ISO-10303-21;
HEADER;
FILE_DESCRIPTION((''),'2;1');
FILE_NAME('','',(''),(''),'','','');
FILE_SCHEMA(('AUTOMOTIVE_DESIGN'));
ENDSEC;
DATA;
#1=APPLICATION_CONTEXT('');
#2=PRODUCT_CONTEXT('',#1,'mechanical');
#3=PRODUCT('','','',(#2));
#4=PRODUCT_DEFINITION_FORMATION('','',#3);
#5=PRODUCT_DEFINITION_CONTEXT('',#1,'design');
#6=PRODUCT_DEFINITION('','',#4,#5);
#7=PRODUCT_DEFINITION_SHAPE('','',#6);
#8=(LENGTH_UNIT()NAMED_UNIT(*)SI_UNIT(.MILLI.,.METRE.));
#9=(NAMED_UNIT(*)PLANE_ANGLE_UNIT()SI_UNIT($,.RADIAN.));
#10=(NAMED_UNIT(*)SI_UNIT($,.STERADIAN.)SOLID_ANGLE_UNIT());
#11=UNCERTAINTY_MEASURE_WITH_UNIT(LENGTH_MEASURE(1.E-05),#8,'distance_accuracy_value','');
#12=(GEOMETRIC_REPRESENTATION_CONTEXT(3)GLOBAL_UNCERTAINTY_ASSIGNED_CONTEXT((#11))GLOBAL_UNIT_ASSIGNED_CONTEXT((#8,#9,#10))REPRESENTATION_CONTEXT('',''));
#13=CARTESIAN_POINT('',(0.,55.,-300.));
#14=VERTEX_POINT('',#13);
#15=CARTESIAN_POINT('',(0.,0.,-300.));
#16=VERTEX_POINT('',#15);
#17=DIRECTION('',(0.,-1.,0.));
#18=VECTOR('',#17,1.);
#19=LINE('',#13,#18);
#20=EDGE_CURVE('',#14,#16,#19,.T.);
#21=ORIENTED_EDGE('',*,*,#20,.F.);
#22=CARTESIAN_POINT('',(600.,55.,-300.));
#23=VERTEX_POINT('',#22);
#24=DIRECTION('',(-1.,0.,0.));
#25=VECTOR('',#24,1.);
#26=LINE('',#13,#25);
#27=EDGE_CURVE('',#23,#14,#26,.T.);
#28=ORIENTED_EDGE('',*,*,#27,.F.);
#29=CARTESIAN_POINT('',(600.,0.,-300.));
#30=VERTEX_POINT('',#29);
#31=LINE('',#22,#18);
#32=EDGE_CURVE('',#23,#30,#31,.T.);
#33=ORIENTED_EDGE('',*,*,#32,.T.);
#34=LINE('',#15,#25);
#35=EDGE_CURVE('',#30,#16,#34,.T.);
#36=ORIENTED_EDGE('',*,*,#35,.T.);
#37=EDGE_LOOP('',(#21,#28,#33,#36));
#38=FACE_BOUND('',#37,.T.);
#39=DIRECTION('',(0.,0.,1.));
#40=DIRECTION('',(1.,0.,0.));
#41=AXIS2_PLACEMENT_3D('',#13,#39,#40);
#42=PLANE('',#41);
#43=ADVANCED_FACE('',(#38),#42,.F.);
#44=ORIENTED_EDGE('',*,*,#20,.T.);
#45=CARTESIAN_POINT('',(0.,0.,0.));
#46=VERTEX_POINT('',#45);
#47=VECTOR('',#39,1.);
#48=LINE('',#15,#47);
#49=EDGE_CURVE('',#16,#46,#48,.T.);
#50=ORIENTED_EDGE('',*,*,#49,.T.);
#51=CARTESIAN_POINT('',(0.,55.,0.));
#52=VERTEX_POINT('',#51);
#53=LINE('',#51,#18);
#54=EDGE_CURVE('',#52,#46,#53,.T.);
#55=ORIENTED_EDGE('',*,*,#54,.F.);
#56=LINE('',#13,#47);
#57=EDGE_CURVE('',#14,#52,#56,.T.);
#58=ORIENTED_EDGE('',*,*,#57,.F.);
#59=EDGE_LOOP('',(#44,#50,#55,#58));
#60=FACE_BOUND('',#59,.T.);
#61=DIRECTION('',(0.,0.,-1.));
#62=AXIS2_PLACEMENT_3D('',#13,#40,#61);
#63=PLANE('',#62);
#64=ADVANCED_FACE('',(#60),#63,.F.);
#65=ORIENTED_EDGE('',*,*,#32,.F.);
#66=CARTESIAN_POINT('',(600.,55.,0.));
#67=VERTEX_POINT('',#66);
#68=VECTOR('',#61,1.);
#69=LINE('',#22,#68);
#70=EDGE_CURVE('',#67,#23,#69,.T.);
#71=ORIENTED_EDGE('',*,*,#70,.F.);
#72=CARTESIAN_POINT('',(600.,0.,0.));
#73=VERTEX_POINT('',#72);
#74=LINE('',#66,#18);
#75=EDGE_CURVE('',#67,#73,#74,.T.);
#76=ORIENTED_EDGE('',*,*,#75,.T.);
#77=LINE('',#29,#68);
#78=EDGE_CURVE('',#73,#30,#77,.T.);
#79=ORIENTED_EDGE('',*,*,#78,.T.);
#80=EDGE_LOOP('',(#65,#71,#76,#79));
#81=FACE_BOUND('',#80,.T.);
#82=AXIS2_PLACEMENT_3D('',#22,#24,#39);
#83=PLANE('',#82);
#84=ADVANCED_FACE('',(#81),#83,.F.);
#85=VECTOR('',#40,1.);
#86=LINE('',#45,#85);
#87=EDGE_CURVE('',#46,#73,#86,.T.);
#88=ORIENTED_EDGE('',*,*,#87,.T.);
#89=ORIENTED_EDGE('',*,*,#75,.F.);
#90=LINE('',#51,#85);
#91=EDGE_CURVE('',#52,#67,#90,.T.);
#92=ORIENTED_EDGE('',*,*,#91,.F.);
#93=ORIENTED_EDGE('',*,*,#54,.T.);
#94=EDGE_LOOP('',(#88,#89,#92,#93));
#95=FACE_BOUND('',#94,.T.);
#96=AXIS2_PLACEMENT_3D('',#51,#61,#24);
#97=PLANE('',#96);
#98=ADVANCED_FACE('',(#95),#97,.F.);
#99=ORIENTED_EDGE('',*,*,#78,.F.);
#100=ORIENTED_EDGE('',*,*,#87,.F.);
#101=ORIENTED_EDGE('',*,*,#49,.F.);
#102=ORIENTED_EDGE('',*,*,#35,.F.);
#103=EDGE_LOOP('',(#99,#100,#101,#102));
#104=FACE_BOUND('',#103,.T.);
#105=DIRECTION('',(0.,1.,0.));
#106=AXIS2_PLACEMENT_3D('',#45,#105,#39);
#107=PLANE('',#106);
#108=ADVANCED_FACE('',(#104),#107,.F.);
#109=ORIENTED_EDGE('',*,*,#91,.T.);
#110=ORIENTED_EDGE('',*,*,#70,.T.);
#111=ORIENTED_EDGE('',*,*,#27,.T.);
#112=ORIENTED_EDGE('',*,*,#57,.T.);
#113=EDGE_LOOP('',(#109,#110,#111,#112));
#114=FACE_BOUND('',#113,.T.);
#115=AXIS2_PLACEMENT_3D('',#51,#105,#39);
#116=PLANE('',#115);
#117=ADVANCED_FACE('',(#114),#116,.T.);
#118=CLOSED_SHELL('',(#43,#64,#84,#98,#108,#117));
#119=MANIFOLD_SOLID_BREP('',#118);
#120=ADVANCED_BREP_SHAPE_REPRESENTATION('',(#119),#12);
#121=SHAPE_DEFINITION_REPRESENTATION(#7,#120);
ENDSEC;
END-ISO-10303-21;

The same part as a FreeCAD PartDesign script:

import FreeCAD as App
import Part
import Sketcher
from FreeCAD import Vector
Q = App.Units.Quantity


def add_polygon(sketch, points):
    """Adds a closed chain of lines whose ends are joined by coincident constraints."""
    first, n = sketch.GeometryCount, len(points)
    for a, b in zip(points, points[1:] + points[:1]):
        sketch.addGeometry(Part.LineSegment(App.Vector(*a, 0), App.Vector(*b, 0)), False)
    for i in range(n):
        sketch.addConstraint(Sketcher.Constraint("Coincident", first + i, 2, first + (i + 1) % n, 1))

doc = App.newDocument("Part")
body = doc.addObject("PartDesign::Body", "Body")

sketch1 = doc.addObject("Sketcher::SketchObject", "Sketch")
body.addObject(sketch1)
sketch1.AttachmentSupport = (doc.XZ_Plane, [""])
sketch1.MapMode = "FlatFace"
add_polygon(sketch1, [(0, -300), (0, 0), (600, 0), (600, -300)])
sketch1.addConstraint([
    Sketcher.Constraint("Vertical", 0),
    Sketcher.Constraint("Horizontal", 1),
    Sketcher.Constraint("Vertical", 2),
    Sketcher.Constraint("Horizontal", 3),
    Sketcher.Constraint("Coincident", 0, 2, -1, 1),
    Sketcher.Constraint("DistanceX", 1, 1, 1, 2, Q("600 mm")),
    Sketcher.Constraint("DistanceY", 0, 1, 0, 2, Q("300 mm")),
])
pad1 = doc.addObject("PartDesign::Pad", "Pad")
body.addObject(pad1)
pad1.Profile = sketch1
pad1.Length = 55
pad1.Reversed = True

doc.recompute()
